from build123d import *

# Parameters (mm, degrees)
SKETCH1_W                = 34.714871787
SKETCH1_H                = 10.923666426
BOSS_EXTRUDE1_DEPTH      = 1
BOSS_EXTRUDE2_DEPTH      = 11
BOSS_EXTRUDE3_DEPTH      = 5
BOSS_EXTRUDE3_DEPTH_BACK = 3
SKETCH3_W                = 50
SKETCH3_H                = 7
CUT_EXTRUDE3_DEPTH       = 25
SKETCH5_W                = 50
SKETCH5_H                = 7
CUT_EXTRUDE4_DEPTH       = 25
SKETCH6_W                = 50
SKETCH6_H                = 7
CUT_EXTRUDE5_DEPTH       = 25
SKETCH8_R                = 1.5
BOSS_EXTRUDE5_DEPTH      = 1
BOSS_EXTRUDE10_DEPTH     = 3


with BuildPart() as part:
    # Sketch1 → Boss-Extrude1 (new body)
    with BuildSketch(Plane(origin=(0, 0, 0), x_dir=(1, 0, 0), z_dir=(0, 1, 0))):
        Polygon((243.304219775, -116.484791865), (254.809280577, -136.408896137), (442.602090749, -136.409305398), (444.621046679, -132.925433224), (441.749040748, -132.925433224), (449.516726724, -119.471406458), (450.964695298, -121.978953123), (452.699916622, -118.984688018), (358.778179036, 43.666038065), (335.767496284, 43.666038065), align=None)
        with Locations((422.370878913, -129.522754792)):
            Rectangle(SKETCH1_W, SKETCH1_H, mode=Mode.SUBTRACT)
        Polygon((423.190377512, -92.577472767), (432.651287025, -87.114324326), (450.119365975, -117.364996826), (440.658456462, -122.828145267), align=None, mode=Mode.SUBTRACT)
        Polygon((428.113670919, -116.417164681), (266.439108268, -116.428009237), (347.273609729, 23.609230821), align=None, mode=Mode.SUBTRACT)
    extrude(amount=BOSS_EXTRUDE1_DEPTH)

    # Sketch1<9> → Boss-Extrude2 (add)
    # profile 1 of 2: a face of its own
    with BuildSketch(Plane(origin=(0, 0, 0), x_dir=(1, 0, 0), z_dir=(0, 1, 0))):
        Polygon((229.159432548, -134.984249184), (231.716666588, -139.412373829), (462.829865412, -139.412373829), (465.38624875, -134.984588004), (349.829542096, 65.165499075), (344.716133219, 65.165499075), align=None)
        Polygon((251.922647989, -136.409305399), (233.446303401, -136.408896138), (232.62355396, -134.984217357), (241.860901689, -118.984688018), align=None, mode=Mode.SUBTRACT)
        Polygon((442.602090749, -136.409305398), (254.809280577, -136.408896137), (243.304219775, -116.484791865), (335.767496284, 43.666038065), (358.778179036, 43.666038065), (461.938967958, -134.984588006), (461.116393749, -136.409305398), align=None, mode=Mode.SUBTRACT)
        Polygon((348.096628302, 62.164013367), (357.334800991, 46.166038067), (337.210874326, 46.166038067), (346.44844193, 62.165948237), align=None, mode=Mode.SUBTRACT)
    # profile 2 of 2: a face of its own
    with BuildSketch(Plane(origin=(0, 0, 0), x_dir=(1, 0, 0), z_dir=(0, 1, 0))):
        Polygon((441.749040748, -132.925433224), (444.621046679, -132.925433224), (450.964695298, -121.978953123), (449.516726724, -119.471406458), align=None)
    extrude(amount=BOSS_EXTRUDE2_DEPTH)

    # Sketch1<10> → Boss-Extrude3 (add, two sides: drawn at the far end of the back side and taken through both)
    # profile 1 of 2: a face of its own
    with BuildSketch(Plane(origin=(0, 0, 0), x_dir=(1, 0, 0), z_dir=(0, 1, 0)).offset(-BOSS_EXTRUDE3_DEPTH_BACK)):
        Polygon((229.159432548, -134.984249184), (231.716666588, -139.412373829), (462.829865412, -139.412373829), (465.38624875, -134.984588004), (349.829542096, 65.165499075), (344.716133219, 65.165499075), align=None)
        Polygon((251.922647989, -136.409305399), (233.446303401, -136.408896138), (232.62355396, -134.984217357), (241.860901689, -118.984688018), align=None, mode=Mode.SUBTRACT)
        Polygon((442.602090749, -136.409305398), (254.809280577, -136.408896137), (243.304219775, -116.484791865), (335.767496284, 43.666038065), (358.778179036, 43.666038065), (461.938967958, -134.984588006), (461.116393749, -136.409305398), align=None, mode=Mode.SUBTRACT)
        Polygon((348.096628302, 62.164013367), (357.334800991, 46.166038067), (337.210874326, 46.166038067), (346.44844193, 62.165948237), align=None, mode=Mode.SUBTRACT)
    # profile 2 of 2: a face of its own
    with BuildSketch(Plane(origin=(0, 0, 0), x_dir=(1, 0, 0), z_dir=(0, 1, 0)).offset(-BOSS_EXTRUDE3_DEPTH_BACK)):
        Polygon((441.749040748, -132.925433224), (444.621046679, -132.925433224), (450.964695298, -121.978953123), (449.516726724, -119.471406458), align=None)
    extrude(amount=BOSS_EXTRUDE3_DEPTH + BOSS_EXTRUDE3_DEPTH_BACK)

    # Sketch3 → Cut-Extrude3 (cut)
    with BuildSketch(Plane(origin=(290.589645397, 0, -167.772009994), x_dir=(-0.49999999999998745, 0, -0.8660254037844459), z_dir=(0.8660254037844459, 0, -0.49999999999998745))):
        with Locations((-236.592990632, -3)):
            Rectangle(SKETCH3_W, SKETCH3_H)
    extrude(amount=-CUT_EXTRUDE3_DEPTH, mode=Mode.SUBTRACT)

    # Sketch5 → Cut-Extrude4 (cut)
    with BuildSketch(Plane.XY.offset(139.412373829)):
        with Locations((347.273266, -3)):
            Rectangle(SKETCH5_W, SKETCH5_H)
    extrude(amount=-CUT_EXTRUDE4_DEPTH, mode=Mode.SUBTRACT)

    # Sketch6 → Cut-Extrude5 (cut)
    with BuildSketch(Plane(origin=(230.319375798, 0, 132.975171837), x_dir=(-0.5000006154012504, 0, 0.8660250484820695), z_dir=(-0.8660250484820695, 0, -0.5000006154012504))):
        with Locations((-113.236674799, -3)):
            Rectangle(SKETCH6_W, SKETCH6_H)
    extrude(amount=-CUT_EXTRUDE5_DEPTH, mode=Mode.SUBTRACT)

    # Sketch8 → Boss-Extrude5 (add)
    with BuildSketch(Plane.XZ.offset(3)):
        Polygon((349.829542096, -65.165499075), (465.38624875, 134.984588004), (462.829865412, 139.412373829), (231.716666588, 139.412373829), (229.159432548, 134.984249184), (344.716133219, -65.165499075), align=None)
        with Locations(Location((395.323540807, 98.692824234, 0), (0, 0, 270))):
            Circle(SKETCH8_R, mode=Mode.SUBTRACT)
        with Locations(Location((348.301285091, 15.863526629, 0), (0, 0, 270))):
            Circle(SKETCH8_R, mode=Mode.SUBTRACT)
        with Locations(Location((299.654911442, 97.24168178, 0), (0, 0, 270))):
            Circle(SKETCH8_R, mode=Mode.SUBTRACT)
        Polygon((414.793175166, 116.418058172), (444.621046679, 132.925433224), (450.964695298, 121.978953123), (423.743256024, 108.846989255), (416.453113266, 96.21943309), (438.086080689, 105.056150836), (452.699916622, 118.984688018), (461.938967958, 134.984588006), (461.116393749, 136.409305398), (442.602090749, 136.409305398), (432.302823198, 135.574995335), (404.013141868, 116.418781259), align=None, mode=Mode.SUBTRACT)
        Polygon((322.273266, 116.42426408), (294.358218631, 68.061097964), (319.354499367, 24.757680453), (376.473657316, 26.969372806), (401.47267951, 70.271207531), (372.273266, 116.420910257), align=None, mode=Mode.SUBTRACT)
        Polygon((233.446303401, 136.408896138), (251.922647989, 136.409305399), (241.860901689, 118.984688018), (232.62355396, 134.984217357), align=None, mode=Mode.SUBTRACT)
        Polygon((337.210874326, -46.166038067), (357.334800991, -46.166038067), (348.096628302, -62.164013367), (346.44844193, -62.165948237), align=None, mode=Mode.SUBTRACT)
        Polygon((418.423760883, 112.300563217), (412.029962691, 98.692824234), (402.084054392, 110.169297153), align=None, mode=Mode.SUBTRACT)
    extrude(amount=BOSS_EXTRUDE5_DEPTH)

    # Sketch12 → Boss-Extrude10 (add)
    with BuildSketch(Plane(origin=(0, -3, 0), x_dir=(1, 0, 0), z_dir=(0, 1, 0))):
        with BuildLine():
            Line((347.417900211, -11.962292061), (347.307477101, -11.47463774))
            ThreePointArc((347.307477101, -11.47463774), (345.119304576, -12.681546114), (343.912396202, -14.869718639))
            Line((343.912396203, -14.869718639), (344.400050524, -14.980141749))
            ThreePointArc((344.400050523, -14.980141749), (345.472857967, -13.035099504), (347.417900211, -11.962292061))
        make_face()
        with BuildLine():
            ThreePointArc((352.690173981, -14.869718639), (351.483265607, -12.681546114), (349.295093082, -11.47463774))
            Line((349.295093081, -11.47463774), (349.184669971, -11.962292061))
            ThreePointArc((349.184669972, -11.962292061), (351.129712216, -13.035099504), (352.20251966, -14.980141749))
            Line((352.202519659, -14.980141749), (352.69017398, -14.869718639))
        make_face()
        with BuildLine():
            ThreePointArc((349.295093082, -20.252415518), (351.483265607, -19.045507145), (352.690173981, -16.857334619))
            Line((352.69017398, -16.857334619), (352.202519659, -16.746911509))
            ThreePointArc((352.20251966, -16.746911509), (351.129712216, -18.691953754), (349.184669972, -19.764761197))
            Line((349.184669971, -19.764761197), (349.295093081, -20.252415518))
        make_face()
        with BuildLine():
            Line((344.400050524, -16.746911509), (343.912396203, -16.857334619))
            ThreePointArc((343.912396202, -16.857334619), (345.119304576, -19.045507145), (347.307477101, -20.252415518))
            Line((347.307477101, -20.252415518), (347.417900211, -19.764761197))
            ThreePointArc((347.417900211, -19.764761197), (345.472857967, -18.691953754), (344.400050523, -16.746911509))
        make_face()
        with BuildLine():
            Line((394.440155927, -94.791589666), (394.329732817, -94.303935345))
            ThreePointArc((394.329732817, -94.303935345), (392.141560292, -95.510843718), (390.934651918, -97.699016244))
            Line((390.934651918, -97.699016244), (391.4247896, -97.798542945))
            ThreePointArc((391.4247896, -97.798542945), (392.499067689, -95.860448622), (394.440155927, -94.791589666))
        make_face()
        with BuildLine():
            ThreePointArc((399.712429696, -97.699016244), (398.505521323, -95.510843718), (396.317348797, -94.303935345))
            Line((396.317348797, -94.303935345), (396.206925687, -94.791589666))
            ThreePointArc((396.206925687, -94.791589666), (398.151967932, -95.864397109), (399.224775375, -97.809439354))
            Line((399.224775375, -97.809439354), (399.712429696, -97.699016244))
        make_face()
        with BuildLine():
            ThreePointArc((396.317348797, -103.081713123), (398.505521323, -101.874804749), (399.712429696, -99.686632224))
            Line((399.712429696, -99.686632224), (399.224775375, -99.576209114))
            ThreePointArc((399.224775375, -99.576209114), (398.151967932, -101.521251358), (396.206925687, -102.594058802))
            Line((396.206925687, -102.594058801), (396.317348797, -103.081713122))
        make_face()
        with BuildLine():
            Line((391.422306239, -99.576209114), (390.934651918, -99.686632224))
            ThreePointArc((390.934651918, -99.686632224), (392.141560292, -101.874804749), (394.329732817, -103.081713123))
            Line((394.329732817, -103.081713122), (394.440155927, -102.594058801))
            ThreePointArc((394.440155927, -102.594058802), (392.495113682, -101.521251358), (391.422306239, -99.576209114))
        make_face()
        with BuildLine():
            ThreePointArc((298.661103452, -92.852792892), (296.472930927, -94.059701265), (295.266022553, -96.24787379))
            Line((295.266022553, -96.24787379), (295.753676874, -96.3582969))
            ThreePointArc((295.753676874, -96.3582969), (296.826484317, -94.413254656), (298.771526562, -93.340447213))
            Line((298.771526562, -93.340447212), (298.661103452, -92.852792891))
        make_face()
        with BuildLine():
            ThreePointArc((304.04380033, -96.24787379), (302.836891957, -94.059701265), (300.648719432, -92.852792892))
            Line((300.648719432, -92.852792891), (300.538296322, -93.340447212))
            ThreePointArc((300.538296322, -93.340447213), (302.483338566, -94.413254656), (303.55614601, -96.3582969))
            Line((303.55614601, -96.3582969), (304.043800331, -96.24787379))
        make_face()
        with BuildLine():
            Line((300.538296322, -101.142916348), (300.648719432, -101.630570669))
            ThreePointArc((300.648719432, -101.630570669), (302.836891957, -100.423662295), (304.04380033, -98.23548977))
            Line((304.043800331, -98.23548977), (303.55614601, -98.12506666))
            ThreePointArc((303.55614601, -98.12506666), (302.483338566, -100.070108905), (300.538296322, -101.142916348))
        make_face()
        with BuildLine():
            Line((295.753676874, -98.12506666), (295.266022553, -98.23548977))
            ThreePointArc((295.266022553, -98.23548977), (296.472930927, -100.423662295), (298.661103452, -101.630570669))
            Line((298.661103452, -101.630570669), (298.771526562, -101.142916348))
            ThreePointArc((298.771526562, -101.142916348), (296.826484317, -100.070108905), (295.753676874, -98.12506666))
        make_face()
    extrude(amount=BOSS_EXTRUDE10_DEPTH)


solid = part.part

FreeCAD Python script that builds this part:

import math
import FreeCAD as App
import Part
import Sketcher
Q = App.Units.Quantity


def add_polygon(sketch, points):
    """Adds a closed chain of lines whose ends are joined by coincident constraints."""
    first, n = sketch.GeometryCount, len(points)
    for a, b in zip(points, points[1:] + points[:1]):
        sketch.addGeometry(Part.LineSegment(App.Vector(*a, 0), App.Vector(*b, 0)), False)
    for i in range(n):
        sketch.addConstraint(Sketcher.Constraint("Coincident", first + i, 2, first + (i + 1) % n, 1))

doc = App.newDocument("Part")
body = doc.addObject("PartDesign::Body", "Body")

# Sketch on XZ plane
sketch1 = body.newObject("Sketcher::SketchObject", "Sketch")
sketch1.AttachmentSupport = (doc.getObject("XZ_Plane"), [""])
sketch1.MapMode = "FlatFace"
add_polygon(sketch1, [(243.30422, 116.484792), (254.809281, 136.408896), (442.602091, 136.409305), (444.621047, 132.925433), (441.749041, 132.925433), (449.516727, 119.471406), (450.964695, 121.978953), (452.699917, 118.984688), (358.778179, -43.666038), (335.767496, -43.666038)])  # lines 0-9
add_polygon(sketch1, [(439.728315, 134.984588), (405.013443, 134.984588), (405.013443, 124.060922), (439.728315, 124.060922)])  # lines 10-13
add_polygon(sketch1, [(440.658456, 122.828145), (423.190378, 92.577473), (432.651287, 87.114324), (450.119366, 117.364997)])  # lines 14-17
add_polygon(sketch1, [(347.27361, -23.609231), (428.113671, 116.417165), (266.439108, 116.428009)])  # lines 18-20
sketch1.addConstraint([
    Sketcher.Constraint("Horizontal", 3),
    Sketcher.Constraint("Horizontal", 8),
    Sketcher.Constraint("Horizontal", 10),
    Sketcher.Constraint("Vertical", 11),
    Sketcher.Constraint("Horizontal", 12),
    Sketcher.Constraint("Vertical", 13),
    Sketcher.Constraint("Parallel", 0, 5),
    Sketcher.Constraint("Parallel", 2, 6),
    Sketcher.Constraint("Parallel", 5, 7),
    Sketcher.Constraint("Parallel", 4, 9),
    Sketcher.Constraint("Parallel", 7, 14),
    Sketcher.Constraint("Perpendicular", 14, 15),
    Sketcher.Constraint("Perpendicular", 15, 16),
    Sketcher.Constraint("Perpendicular", 16, 17),
    Sketcher.Constraint("Angle", 4, Q("-60 deg")),
    Sketcher.Constraint("DistanceX", 10, 2, 10, 1, 34.714872),
    Sketcher.Constraint("DistanceY", 4, 2, 1, 2, 16.937899),
    Sketcher.Constraint("DistanceX", 8, 2, 5, 2, 115.197199),
    Sketcher.Constraint("Distance", 0, 23.007311),
    Sketcher.Constraint("Distance", 1, 187.79281),
    Sketcher.Constraint("Distance", 4, 15.535372),
    Sketcher.Constraint("Distance", 7, 187.82053),
    Sketcher.Constraint("Distance", 14, 34.93189),
    Sketcher.Constraint("Distance", 20, 161.693059),
    Sketcher.Constraint("DistanceX", 3, 2, 3, 1, 2.872006),
    Sketcher.Constraint("DistanceX", 8, 2, 8, 1, 23.010683),
    Sketcher.Constraint("DistanceY", 11, 2, 11, 1, 10.923666),
    Sketcher.Constraint("DistanceX", -1, 1, 0, 2, 254.809281),
    Sketcher.Constraint("DistanceX", -1, 1, 3, 2, 441.749041),
    Sketcher.Constraint("DistanceY", -1, 1, 6, 2, 118.984688),
    Sketcher.Constraint("DistanceX", -1, 1, 7, 2, 358.778179),
    Sketcher.Constraint("DistanceY", 7, 2, -1, 1, 43.666038),
    Sketcher.Constraint("DistanceY", -1, 1, 10, 2, 134.984588),
    Sketcher.Constraint("DistanceX", -1, 1, 18, 2, 428.113671),
    Sketcher.Constraint("DistanceX", -1, 1, 19, 2, 266.439108),
    Sketcher.Constraint("DistanceY", -1, 1, 19, 2, 116.428009),
    Sketcher.Constraint("DistanceX", -1, 1, 20, 2, 347.27361),
    Sketcher.Constraint("DistanceX", 12, 2, 2, 2, 4.892732),
    Sketcher.Constraint("DistanceY", 14, 2, 12, 2, 31.483449),
    Sketcher.Constraint("DistanceX", 14, 2, 4, 2, 26.326349),
    Sketcher.Constraint("DistanceX", 14, 2, 15, 2, 9.46091),
    Sketcher.Constraint("DistanceY", 18, 2, 17, 2, 6.410981),
])
pad1 = body.newObject("PartDesign::Pad", "Pad")
pad1.Profile = sketch1
pad1.Length = 1
pad1.Reversed = True

# Sketch on XZ plane
sketch2 = body.newObject("Sketcher::SketchObject", "Sketch001")
sketch2.AttachmentSupport = (doc.getObject("XZ_Plane"), [""])
sketch2.MapMode = "FlatFace"
add_polygon(sketch2, [(229.159433, 134.984249), (231.716667, 139.412374), (462.829865, 139.412374), (465.386249, 134.984588), (349.829542, -65.165499), (344.716133, -65.165499)])  # lines 0-5
add_polygon(sketch2, [(241.860902, 118.984688), (251.922648, 136.409305), (233.446303, 136.408896), (232.623554, 134.984217)])  # lines 6-9
add_polygon(sketch2, [(461.116394, 136.409305), (442.602091, 136.409305), (254.809281, 136.408896), (243.30422, 116.484792), (335.767496, -43.666038), (358.778179, -43.666038), (461.938968, 134.984588)])  # lines 10-16
add_polygon(sketch2, [(346.448442, -62.165948), (348.096628, -62.164013), (357.334801, -46.166038), (337.210874, -46.166038)])  # lines 17-20
add_polygon(sketch2, [(441.749041, 132.925433), (444.621047, 132.925433), (450.964695, 121.978953), (449.516727, 119.471406)])  # lines 21-24
sketch2.addConstraint([
    Sketcher.Constraint("Horizontal", 1),
    Sketcher.Constraint("Horizontal", 4),
    Sketcher.Constraint("Horizontal", 10),
    Sketcher.Constraint("Horizontal", 14),
    Sketcher.Constraint("Horizontal", 19),
    Sketcher.Constraint("Horizontal", 21),
    Sketcher.Constraint("DistanceY", 18, 2, 14, 2, 2.5),
    Sketcher.Constraint("DistanceX", 1, 1, 1, 2, 231.113199),
    Sketcher.Constraint("DistanceX", 4, 2, 4, 1, 5.113409),
    Sketcher.Constraint("DistanceY", 3, 2, -1, 1, 65.165499),
    Sketcher.Constraint("DistanceX", -1, 1, 9, 2, 241.860902),
    Sketcher.Constraint("DistanceX", -1, 1, 18, 2, 357.334801),
    Sketcher.Constraint("DistanceX", 5, 2, 4, 2, 115.556701),
    Sketcher.Constraint("DistanceX", 6, 2, 2, 2, 213.463601),
    Sketcher.Constraint("DistanceX", 7, 2, 9, 2, 8.414598),
    Sketcher.Constraint("DistanceX", 20, 2, 3, 2, 3.3811),
    Sketcher.Constraint("DistanceX", 22, 2, 16, 2, 10.151698),
    Sketcher.Constraint("DistanceY", 23, 2, 10, 2, 16.937899),
    Sketcher.Constraint("Distance", 11, 187.79281),
    Sketcher.Constraint("Distance", 12, 23.007311),
    Sketcher.Constraint("Distance", 16, 1.645129),
    Sketcher.Constraint("Distance", 18, 18.473739),
    Sketcher.Constraint("Distance", 22, 12.651771),
    Sketcher.Constraint("Distance", 24, 15.535372),
    Sketcher.Constraint("DistanceX", 10, 2, 10, 1, 18.514303),
    Sketcher.Constraint("DistanceX", 14, 1, 14, 2, 23.010683),
    Sketcher.Constraint("DistanceX", 19, 2, 19, 1, 20.123927),
    Sketcher.Constraint("DistanceX", 21, 1, 21, 2, 2.872006),
    Sketcher.Constraint("DistanceX", -1, 1, 2, 2, 465.386249),
    Sketcher.Constraint("DistanceY", -1, 1, 2, 2, 134.984588),
    Sketcher.Constraint("DistanceY", -1, 1, 5, 2, 134.984249),
    Sketcher.Constraint("DistanceY", -1, 1, 9, 2, 118.984688),
    Sketcher.Constraint("DistanceX", -1, 1, 10, 2, 442.602091),
    Sketcher.Constraint("DistanceX", -1, 1, 12, 2, 243.30422),
    Sketcher.Constraint("DistanceY", -1, 1, 12, 2, 116.484792),
    Sketcher.Constraint("DistanceY", 13, 2, -1, 1, 43.666038),
    Sketcher.Constraint("DistanceX", -1, 1, 14, 2, 358.778179),
    Sketcher.Constraint("DistanceY", -1, 1, 15, 2, 134.984588),
    Sketcher.Constraint("DistanceX", -1, 1, 17, 2, 348.096628),
    Sketcher.Constraint("DistanceX", -1, 1, 20, 2, 346.448442),
    Sketcher.Constraint("DistanceY", 20, 2, -1, 1, 62.165948),
    Sketcher.Constraint("DistanceX", -1, 1, 24, 2, 441.749041),
    Sketcher.Constraint("DistanceX", 0, 2, 6, 2, 20.205981),
    Sketcher.Constraint("DistanceY", 6, 2, 0, 2, 3.003068),
    Sketcher.Constraint("DistanceY", 7, 2, 6, 2, 0.000409),
    Sketcher.Constraint("DistanceX", 8, 2, 7, 2, 0.822749),
    Sketcher.Constraint("DistanceY", 8, 2, 7, 2, 1.424679),
    Sketcher.Constraint("DistanceY", 9, 2, 8, 2, 15.999529),
    Sketcher.Constraint("DistanceY", 10, 2, 1, 2, 3.003068),
    Sketcher.Constraint("DistanceY", 21, 2, 1, 2, 6.486941),
])
pad2 = body.newObject("PartDesign::Pad", "Pad001")
pad2.Profile = sketch2
pad2.Length = 11
pad2.Reversed = True

# Sketch on XZ plane
sketch3 = body.newObject("Sketcher::SketchObject", "Sketch002")
sketch3.AttachmentSupport = (doc.getObject("XZ_Plane"), [""])
sketch3.MapMode = "FlatFace"
add_polygon(sketch3, [(229.159433, 134.984249), (231.716667, 139.412374), (462.829865, 139.412374), (465.386249, 134.984588), (349.829542, -65.165499), (344.716133, -65.165499)])  # lines 0-5
add_polygon(sketch3, [(241.860902, 118.984688), (251.922648, 136.409305), (233.446303, 136.408896), (232.623554, 134.984217)])  # lines 6-9
add_polygon(sketch3, [(461.116394, 136.409305), (442.602091, 136.409305), (254.809281, 136.408896), (243.30422, 116.484792), (335.767496, -43.666038), (358.778179, -43.666038), (461.938968, 134.984588)])  # lines 10-16
add_polygon(sketch3, [(346.448442, -62.165948), (348.096628, -62.164013), (357.334801, -46.166038), (337.210874, -46.166038)])  # lines 17-20
add_polygon(sketch3, [(441.749041, 132.925433), (444.621047, 132.925433), (450.964695, 121.978953), (449.516727, 119.471406)])  # lines 21-24
sketch3.addConstraint([
    Sketcher.Constraint("Horizontal", 1),
    Sketcher.Constraint("Horizontal", 4),
    Sketcher.Constraint("Horizontal", 10),
    Sketcher.Constraint("Horizontal", 14),
    Sketcher.Constraint("Horizontal", 19),
    Sketcher.Constraint("Horizontal", 21),
    Sketcher.Constraint("DistanceY", 18, 2, 14, 2, 2.5),
    Sketcher.Constraint("DistanceX", 1, 1, 1, 2, 231.113199),
    Sketcher.Constraint("DistanceX", 4, 2, 4, 1, 5.113409),
    Sketcher.Constraint("DistanceY", 3, 2, -1, 1, 65.165499),
    Sketcher.Constraint("DistanceX", -1, 1, 9, 2, 241.860902),
    Sketcher.Constraint("DistanceX", -1, 1, 18, 2, 357.334801),
    Sketcher.Constraint("DistanceX", 5, 2, 4, 2, 115.556701),
    Sketcher.Constraint("DistanceX", 6, 2, 2, 2, 213.463601),
    Sketcher.Constraint("DistanceX", 7, 2, 9, 2, 8.414598),
    Sketcher.Constraint("DistanceX", 20, 2, 3, 2, 3.3811),
    Sketcher.Constraint("DistanceX", 22, 2, 16, 2, 10.151698),
    Sketcher.Constraint("DistanceY", 23, 2, 10, 2, 16.937899),
    Sketcher.Constraint("Distance", 11, 187.79281),
    Sketcher.Constraint("Distance", 12, 23.007311),
    Sketcher.Constraint("Distance", 16, 1.645129),
    Sketcher.Constraint("Distance", 18, 18.473739),
    Sketcher.Constraint("Distance", 22, 12.651771),
    Sketcher.Constraint("Distance", 24, 15.535372),
    Sketcher.Constraint("DistanceX", 10, 2, 10, 1, 18.514303),
    Sketcher.Constraint("DistanceX", 14, 1, 14, 2, 23.010683),
    Sketcher.Constraint("DistanceX", 19, 2, 19, 1, 20.123927),
    Sketcher.Constraint("DistanceX", 21, 1, 21, 2, 2.872006),
    Sketcher.Constraint("DistanceX", -1, 1, 2, 2, 465.386249),
    Sketcher.Constraint("DistanceY", -1, 1, 2, 2, 134.984588),
    Sketcher.Constraint("DistanceY", -1, 1, 5, 2, 134.984249),
    Sketcher.Constraint("DistanceY", -1, 1, 9, 2, 118.984688),
    Sketcher.Constraint("DistanceX", -1, 1, 10, 2, 442.602091),
    Sketcher.Constraint("DistanceX", -1, 1, 12, 2, 243.30422),
    Sketcher.Constraint("DistanceY", -1, 1, 12, 2, 116.484792),
    Sketcher.Constraint("DistanceY", 13, 2, -1, 1, 43.666038),
    Sketcher.Constraint("DistanceX", -1, 1, 14, 2, 358.778179),
    Sketcher.Constraint("DistanceY", -1, 1, 15, 2, 134.984588),
    Sketcher.Constraint("DistanceX", -1, 1, 17, 2, 348.096628),
    Sketcher.Constraint("DistanceX", -1, 1, 20, 2, 346.448442),
    Sketcher.Constraint("DistanceY", 20, 2, -1, 1, 62.165948),
    Sketcher.Constraint("DistanceX", -1, 1, 24, 2, 441.749041),
    Sketcher.Constraint("DistanceX", 0, 2, 6, 2, 20.205981),
    Sketcher.Constraint("DistanceY", 6, 2, 0, 2, 3.003068),
    Sketcher.Constraint("DistanceY", 7, 2, 6, 2, 0.000409),
    Sketcher.Constraint("DistanceX", 8, 2, 7, 2, 0.822749),
    Sketcher.Constraint("DistanceY", 8, 2, 7, 2, 1.424679),
    Sketcher.Constraint("DistanceY", 9, 2, 8, 2, 15.999529),
    Sketcher.Constraint("DistanceY", 10, 2, 1, 2, 3.003068),
    Sketcher.Constraint("DistanceY", 21, 2, 1, 2, 6.486941),
])
pad3 = body.newObject("PartDesign::Pad", "Pad002")
pad3.Profile = sketch3
pad3.Type = "TwoLengths"
pad3.Length = 5
pad3.Length2 = 3
pad3.Reversed = True

# Sketch on an angled plane
sketch4 = body.newObject("Sketcher::SketchObject", "Sketch003")
sketch4.Placement = App.Placement(App.Vector(290.589645, 0, -167.77201), App.Rotation(App.Vector(-0.5, 0, -0.866025404), App.Vector(0, 1, 0), App.Vector(0.866025404, 0, -0.5), "ZXY"))
add_polygon(sketch4, [(-261.592991, 0.5), (-261.592991, -6.5), (-211.592991, -6.5), (-211.592991, 0.5)])  # lines 0-3
sketch4.addConstraint([
    Sketcher.Constraint("Vertical", 0),
    Sketcher.Constraint("Horizontal", 1),
    Sketcher.Constraint("Vertical", 2),
    Sketcher.Constraint("Horizontal", 3),
    Sketcher.Constraint("DistanceX", 1, 1, 1, 2, 50.0),
    Sketcher.Constraint("DistanceY", 0, 2, 0, 1, 7.0),
    Sketcher.Constraint("DistanceY", 0, 2, -1, 1, 6.5),
    Sketcher.Constraint("DistanceX", 0, 2, -1, 1, 261.592991),
])
pocket1 = body.newObject("PartDesign::Pocket", "Pocket")
pocket1.Profile = sketch4
pocket1.Length = 25

# Sketch on XY plane
sketch5 = body.newObject("Sketcher::SketchObject", "Sketch004")
sketch5.AttachmentSupport = (doc.getObject("XY_Plane"), [""])
sketch5.MapMode = "FlatFace"
sketch5.AttachmentOffset = App.Placement(App.Vector(0, 0, 139.412374), App.Rotation())
add_polygon(sketch5, [(322.273266, 0.5), (322.273266, -6.5), (372.273266, -6.5), (372.273266, 0.5)])  # lines 0-3
sketch5.addConstraint([
    Sketcher.Constraint("Vertical", 0),
    Sketcher.Constraint("Horizontal", 1),
    Sketcher.Constraint("Vertical", 2),
    Sketcher.Constraint("Horizontal", 3),
    Sketcher.Constraint("DistanceX", 1, 1, 1, 2, 50.0),
    Sketcher.Constraint("DistanceY", 0, 2, 0, 1, 7.0),
    Sketcher.Constraint("DistanceY", 0, 2, -1, 1, 6.5),
    Sketcher.Constraint("DistanceX", -1, 1, 0, 2, 322.273266),
])
pocket2 = body.newObject("PartDesign::Pocket", "Pocket001")
pocket2.Profile = sketch5
pocket2.Length = 25

# Sketch on an angled plane
sketch6 = body.newObject("Sketcher::SketchObject", "Sketch005")
sketch6.Placement = App.Placement(App.Vector(230.319376, 0, 132.975172), App.Rotation(App.Vector(-0.500000615, 0, 0.866025048), App.Vector(0, 0.999999999, 0), App.Vector(-0.866025048, 0, -0.500000615), "ZXY"))
add_polygon(sketch6, [(-138.236675, 0.5), (-138.236675, -6.5), (-88.236675, -6.5), (-88.236675, 0.5)])  # lines 0-3
sketch6.addConstraint([
    Sketcher.Constraint("Vertical", 0),
    Sketcher.Constraint("Horizontal", 1),
    Sketcher.Constraint("Vertical", 2),
    Sketcher.Constraint("Horizontal", 3),
    Sketcher.Constraint("DistanceX", 1, 1, 1, 2, 50.0),
    Sketcher.Constraint("DistanceY", 0, 2, 0, 1, 7.0),
    Sketcher.Constraint("DistanceY", 0, 2, -1, 1, 6.5),
    Sketcher.Constraint("DistanceX", 0, 2, -1, 1, 138.236675),
])
pocket3 = body.newObject("PartDesign::Pocket", "Pocket002")
pocket3.Profile = sketch6
pocket3.Length = 25

# Sketch on XZ plane
sketch7 = body.newObject("Sketcher::SketchObject", "Sketch006")
sketch7.AttachmentSupport = (doc.getObject("XZ_Plane"), [""])
sketch7.MapMode = "FlatFace"
sketch7.AttachmentOffset = App.Placement(App.Vector(0, 0, 3), App.Rotation())
add_polygon(sketch7, [(349.829542, -65.165499), (465.386249, 134.984588), (462.829865, 139.412374), (231.716667, 139.412374), (229.159433, 134.984249), (344.716133, -65.165499)])  # lines 0-5
add_polygon(sketch7, [(346.448442, -62.165948), (337.210874, -46.166038), (357.334801, -46.166038), (348.096628, -62.164013)])  # lines 6-9
sketch7.addGeometry(Part.Circle(App.Vector(348.301285, 15.863527, 0), App.Vector(0, 0, 1), 1.5), False)  # 10
add_polygon(sketch7, [(232.623554, 134.984217), (233.446303, 136.408896), (251.922648, 136.409305), (241.860902, 118.984688)])  # lines 11-14
sketch7.addGeometry(Part.Circle(App.Vector(299.654911, 97.241682, 0), App.Vector(0, 0, 1), 1.5), False)  # 15
add_polygon(sketch7, [(294.358219, 68.061098), (322.273266, 116.424264), (372.273266, 116.42091), (401.47268, 70.271208), (376.473657, 26.969373), (319.354499, 24.75768)])  # lines 16-21
sketch7.addGeometry(Part.Circle(App.Vector(395.323541, 98.692824, 0), App.Vector(0, 0, 1), 1.5), False)  # 22
add_polygon(sketch7, [(402.084054, 110.169297), (418.423761, 112.300563), (412.029963, 98.692824)])  # lines 23-25
add_polygon(sketch7, [(444.621047, 132.925433), (414.793175, 116.418058), (404.013142, 116.418781), (432.302823, 135.574995), (442.602091, 136.409305), (461.116394, 136.409305), (461.938968, 134.984588), (452.699917, 118.984688), (438.086081, 105.056151), (416.453113, 96.219433), (423.743256, 108.846989), (450.964695, 121.978953)])  # lines 26-37
sketch7.addConstraint([
    Sketcher.Constraint("Horizontal", 2),
    Sketcher.Constraint("Horizontal", 5),
    Sketcher.Constraint("Horizontal", 7),
    Sketcher.Constraint("Horizontal", 30),
    Sketcher.Constraint("Diameter", 10, 3.0),
    Sketcher.Constraint("Diameter", 15, 3.0),
    Sketcher.Constraint("Diameter", 22, 3.0),
    Sketcher.Constraint("Distance", 17, 50.0),
    Sketcher.Constraint("Distance", 19, 50.0),
    Sketcher.Constraint("Distance", 21, 50.0),
    Sketcher.Constraint("Distance", 24, 15.035),
    Sketcher.Constraint("DistanceX", 2, 2, 2, 1, 231.113199),
    Sketcher.Constraint("DistanceX", 5, 2, 22, 3, 45.493999),
    Sketcher.Constraint("DistanceY", 20, 2, 15, 3, 72.484001),
    Sketcher.Constraint("Distance", 34, 23.368202),
    Sketcher.Constraint("DistanceX", 5, 1, 5, 2, 5.113409),
    Sketcher.Constraint("DistanceY", 4, 2, -1, 1, 65.165499),
    Sketcher.Constraint("DistanceX", -1, 1, 7, 2, 357.334801),
    Sketcher.Constraint("DistanceX", -1, 1, 13, 2, 241.860902),
    Sketcher.Constraint("DistanceX", -1, 1, 20, 2, 319.354499),
    Sketcher.Constraint("DistanceX", 3, 2, 4, 2, 115.556701),
    Sketcher.Constraint("DistanceX", 9, 2, 5, 2, 3.3811),
    Sketcher.Constraint("DistanceX", 11, 2, 13, 2, 8.414598),
    Sketcher.Constraint("DistanceX", 17, 2, 1, 2, 90.556599),
    Sketcher.Constraint("DistanceX", 24, 2, 23, 2, 6.393798),
    Sketcher.Constraint("DistanceX", 22, 3, 27, 2, 8.689601),
    Sketcher.Constraint("DistanceY", 32, 2, 31, 2, 15.9999),
    Sketcher.Constraint("DistanceY", 32, 2, 0, 2, 15.9999),
    Sketcher.Constraint("DistanceX", 36, 2, 30, 2, 10.151698),
    Sketcher.Constraint("Distance", 8, 18.473739),
    Sketcher.Constraint("Distance", 18, 54.611362),
    Sketcher.Constraint("Distance", 20, 57.161961),
    Sketcher.Constraint("Distance", 31, 1.645129),
    Sketcher.Constraint("Distance", 36, 30.223422),
    Sketcher.Constraint("Distance", 37, 12.651771),
    Sketcher.Constraint("DistanceX", 7, 1, 7, 2, 20.123927),
    Sketcher.Constraint("DistanceX", 30, 1, 30, 2, 18.514303),
    Sketcher.Constraint("DistanceX", -1, 1, 15, 3, 299.654911),
    Sketcher.Constraint("DistanceY", -1, 1, 15, 3, 97.241682),
    Sketcher.Constraint("DistanceX", -1, 1, 22, 3, 395.323541),
    Sketcher.Constraint("DistanceX", -1, 1, 0, 2, 465.386249),
    Sketcher.Constraint("DistanceY", -1, 1, 0, 2, 134.984588),
    Sketcher.Constraint("DistanceY", -1, 1, 3, 2, 134.984249),
    Sketcher.Constraint("DistanceY", 6, 2, -1, 1, 46.166038),
    Sketcher.Constraint("DistanceX", -1, 1, 8, 2, 348.096628),
    Sketcher.Constraint("DistanceY", 9, 2, -1, 1, 62.165948),
    Sketcher.Constraint("DistanceY", -1, 1, 13, 2, 118.984688),
    Sketcher.Constraint("DistanceY", -1, 1, 17, 2, 116.42091),
    Sketcher.Constraint("DistanceX", -1, 1, 18, 2, 401.47268),
    Sketcher.Constraint("DistanceX", -1, 1, 21, 2, 294.358219),
    Sketcher.Constraint("DistanceX", -1, 1, 23, 2, 418.423761),
    Sketcher.Constraint("DistanceY", -1, 1, 26, 2, 116.418058),
    Sketcher.Constraint("DistanceY", -1, 1, 27, 2, 116.418781),
    Sketcher.Constraint("DistanceX", -1, 1, 29, 2, 442.602091),
    Sketcher.Constraint("DistanceX", -1, 1, 33, 2, 438.086081),
    Sketcher.Constraint("DistanceY", -1, 1, 33, 2, 105.056151),
    Sketcher.Constraint("DistanceY", -1, 1, 35, 2, 108.846989),
    Sketcher.Constraint("DistanceY", 10, 3, 0, 2, 119.121061),
    Sketcher.Constraint("DistanceY", 22, 3, 1, 2, 40.71955),
    Sketcher.Constraint("DistanceX", 10, 3, 1, 2, 114.52858),
    Sketcher.Constraint("DistanceX", 4, 2, 10, 3, 3.585152),
    Sketcher.Constraint("DistanceY", 22, 3, 11, 2, 37.716072),
    Sketcher.Constraint("DistanceY", 10, 3, 11, 2, 120.54537),
    Sketcher.Constraint("DistanceY", 11, 2, 12, 2, 0.000409),
    Sketcher.Constraint("DistanceX", 2, 2, 12, 2, 20.205981),
    Sketcher.Constraint("DistanceX", 14, 2, 11, 2, 0.822749),
    Sketcher.Constraint("DistanceY", 14, 2, 11, 2, 1.424679),
    Sketcher.Constraint("DistanceY", 16, 2, 12, 2, 19.985041),
    Sketcher.Constraint("DistanceY", 22, 3, 23, 2, 13.607739),
    Sketcher.Constraint("DistanceX", 25, 2, 24, 2, 9.945908),
    Sketcher.Constraint("DistanceY", 18, 2, 25, 2, 39.89809),
    Sketcher.Constraint("DistanceX", 25, 2, 26, 2, 12.709121),
    Sketcher.Constraint("DistanceX", 26, 2, 28, 2, 17.509648),
    Sketcher.Constraint("DistanceY", 28, 2, 1, 2, 3.837378),
    Sketcher.Constraint("DistanceY", 28, 2, 29, 2, 0.83431),
    Sketcher.Constraint("DistanceX", 32, 2, 31, 2, 9.239051),
    Sketcher.Constraint("DistanceX", 24, 2, 34, 2, 4.423151),
    Sketcher.Constraint("DistanceX", 26, 2, 35, 2, 8.950081),
    Sketcher.Constraint("DistanceX", 37, 2, 36, 2, 6.343649),
])
pad4 = body.newObject("PartDesign::Pad", "Pad003")
pad4.Profile = sketch7
pad4.Length = 1

# Sketch on XZ plane
sketch8 = body.newObject("Sketcher::SketchObject", "Sketch007")
sketch8.AttachmentSupport = (doc.getObject("XZ_Plane"), [""])
sketch8.MapMode = "FlatFace"
sketch8.AttachmentOffset = App.Placement(App.Vector(0, 0, 3), App.Rotation())
sketch8.addGeometry([
    Part.LineSegment(App.Vector(347.4179, 11.962292, 0), App.Vector(347.307477, 11.474638, 0)),  # 0
    Part.ArcOfCircle(Part.Circle(App.Vector(348.301285, 15.863527, 0), App.Vector(0, 0, 1), 4.5), math.radians(-167.24126), math.radians(-102.75874)),  # 1
    Part.LineSegment(App.Vector(343.912396, 14.869719, 0), App.Vector(344.400051, 14.980142, 0)),  # 2
    Part.ArcOfCircle(Part.Circle(App.Vector(348.301285, 15.863527, 0), App.Vector(0, 0, 1), 4), math.radians(-167.24126), math.radians(-102.75874)),  # 3
    Part.ArcOfCircle(Part.Circle(App.Vector(348.301285, 15.863527, 0), App.Vector(0, 0, 1), 4.5), math.radians(-77.24126), math.radians(-12.75874)),  # 4
    Part.LineSegment(App.Vector(349.295093, 11.474638, 0), App.Vector(349.18467, 11.962292, 0)),  # 5
    Part.ArcOfCircle(Part.Circle(App.Vector(348.301285, 15.863527, 0), App.Vector(0, 0, 1), 4), math.radians(-77.24126), math.radians(-12.75874)),  # 6
    Part.LineSegment(App.Vector(352.20252, 14.980142, 0), App.Vector(352.690174, 14.869719, 0)),  # 7
    Part.ArcOfCircle(Part.Circle(App.Vector(348.301285, 15.863527, 0), App.Vector(0, 0, 1), 4.5), math.radians(12.75874), math.radians(77.24126)),  # 8
    Part.LineSegment(App.Vector(352.690174, 16.857335, 0), App.Vector(352.20252, 16.746912, 0)),  # 9
    Part.ArcOfCircle(Part.Circle(App.Vector(348.301285, 15.863527, 0), App.Vector(0, 0, 1), 4), math.radians(12.75874), math.radians(77.24126)),  # 10
    Part.LineSegment(App.Vector(349.18467, 19.764761, 0), App.Vector(349.295093, 20.252416, 0)),  # 11
    Part.LineSegment(App.Vector(344.400051, 16.746912, 0), App.Vector(343.912396, 16.857335, 0)),  # 12
    Part.ArcOfCircle(Part.Circle(App.Vector(348.301285, 15.863527, 0), App.Vector(0, 0, 1), 4.5), math.radians(102.75874), math.radians(167.24126)),  # 13
    Part.LineSegment(App.Vector(347.307477, 20.252416, 0), App.Vector(347.4179, 19.764761, 0)),  # 14
    Part.ArcOfCircle(Part.Circle(App.Vector(348.301285, 15.863527, 0), App.Vector(0, 0, 1), 4), math.radians(102.75874), math.radians(167.24126)),  # 15
    Part.LineSegment(App.Vector(394.440156, 94.79159, 0), App.Vector(394.329733, 94.303935, 0)),  # 16
    Part.ArcOfCircle(Part.Circle(App.Vector(395.323541, 98.692824, 0), App.Vector(0, 0, 1), 4.5), math.radians(-167.24126), math.radians(-102.75874)),  # 17
    Part.LineSegment(App.Vector(390.934652, 97.699016, 0), App.Vector(391.42479, 97.798543, 0)),  # 18
    Part.ArcOfCircle(Part.Circle(App.Vector(395.323541, 98.692824, 0), App.Vector(0, 0, 1), 4), math.radians(-167.081178), math.radians(-102.75874)),  # 19
    Part.ArcOfCircle(Part.Circle(App.Vector(395.323541, 98.692824, 0), App.Vector(0, 0, 1), 4.5), math.radians(-77.24126), math.radians(-12.75874)),  # 20
    Part.LineSegment(App.Vector(396.317349, 94.303935, 0), App.Vector(396.206926, 94.79159, 0)),  # 21
    Part.ArcOfCircle(Part.Circle(App.Vector(395.323541, 98.692824, 0), App.Vector(0, 0, 1), 4), math.radians(-77.24126), math.radians(-12.75874)),  # 22
    Part.LineSegment(App.Vector(399.224775, 97.809439, 0), App.Vector(399.71243, 97.699016, 0)),  # 23
    Part.ArcOfCircle(Part.Circle(App.Vector(395.323541, 98.692824, 0), App.Vector(0, 0, 1), 4.5), math.radians(12.75874), math.radians(77.24126)),  # 24
    Part.LineSegment(App.Vector(399.71243, 99.686632, 0), App.Vector(399.224775, 99.576209, 0)),  # 25
    Part.ArcOfCircle(Part.Circle(App.Vector(395.323541, 98.692824, 0), App.Vector(0, 0, 1), 4), math.radians(12.75874), math.radians(77.24126)),  # 26
    Part.LineSegment(App.Vector(396.206926, 102.594059, 0), App.Vector(396.317349, 103.081713, 0)),  # 27
    Part.LineSegment(App.Vector(391.422306, 99.576209, 0), App.Vector(390.934652, 99.686632, 0)),  # 28
    Part.ArcOfCircle(Part.Circle(App.Vector(395.323541, 98.692824, 0), App.Vector(0, 0, 1), 4.5), math.radians(102.75874), math.radians(167.24126)),  # 29
    Part.LineSegment(App.Vector(394.329733, 103.081713, 0), App.Vector(394.440156, 102.594059, 0)),  # 30
    Part.ArcOfCircle(Part.Circle(App.Vector(395.323541, 98.692824, 0), App.Vector(0, 0, 1), 4), math.radians(102.75874), math.radians(167.24126)),  # 31
    Part.ArcOfCircle(Part.Circle(App.Vector(299.654911, 97.241682, 0), App.Vector(0, 0, 1), 4.5), math.radians(-167.24126), math.radians(-102.75874)),  # 32
    Part.LineSegment(App.Vector(295.266023, 96.247874, 0), App.Vector(295.753677, 96.358297, 0)),  # 33
    Part.ArcOfCircle(Part.Circle(App.Vector(299.654911, 97.241682, 0), App.Vector(0, 0, 1), 4), math.radians(-167.24126), math.radians(-102.75874)),  # 34
    Part.LineSegment(App.Vector(298.771527, 93.340447, 0), App.Vector(298.661103, 92.852793, 0)),  # 35
    Part.ArcOfCircle(Part.Circle(App.Vector(299.654911, 97.241682, 0), App.Vector(0, 0, 1), 4.5), math.radians(-77.24126), math.radians(-12.75874)),  # 36
    Part.LineSegment(App.Vector(300.648719, 92.852793, 0), App.Vector(300.538296, 93.340447, 0)),  # 37
    Part.ArcOfCircle(Part.Circle(App.Vector(299.654911, 97.241682, 0), App.Vector(0, 0, 1), 4), math.radians(-77.24126), math.radians(-12.75874)),  # 38
    Part.LineSegment(App.Vector(303.556146, 96.358297, 0), App.Vector(304.0438, 96.247874, 0)),  # 39
    Part.LineSegment(App.Vector(300.538296, 101.142916, 0), App.Vector(300.648719, 101.630571, 0)),  # 40
    Part.ArcOfCircle(Part.Circle(App.Vector(299.654911, 97.241682, 0), App.Vector(0, 0, 1), 4.5), math.radians(12.75874), math.radians(77.24126)),  # 41
    Part.LineSegment(App.Vector(304.0438, 98.23549, 0), App.Vector(303.556146, 98.125067, 0)),  # 42
    Part.ArcOfCircle(Part.Circle(App.Vector(299.654911, 97.241682, 0), App.Vector(0, 0, 1), 4), math.radians(12.75874), math.radians(77.24126)),  # 43
    Part.LineSegment(App.Vector(295.753677, 98.125067, 0), App.Vector(295.266023, 98.23549, 0)),  # 44
    Part.ArcOfCircle(Part.Circle(App.Vector(299.654911, 97.241682, 0), App.Vector(0, 0, 1), 4.5), math.radians(102.75874), math.radians(167.24126)),  # 45
    Part.LineSegment(App.Vector(298.661103, 101.630571, 0), App.Vector(298.771527, 101.142916, 0)),  # 46
    Part.ArcOfCircle(Part.Circle(App.Vector(299.654911, 97.241682, 0), App.Vector(0, 0, 1), 4), math.radians(102.75874), math.radians(167.24126)),  # 47
], False)
sketch8.addConstraint([
    Sketcher.Constraint("Coincident", 0, 2, 1, 2),
    Sketcher.Constraint("Coincident", 1, 1, 2, 1),
    Sketcher.Constraint("Coincident", 2, 2, 3, 1),
    Sketcher.Constraint("Coincident", 3, 2, 0, 1),
    Sketcher.Constraint("Coincident", 4, 1, 5, 1),
    Sketcher.Constraint("Coincident", 5, 2, 6, 1),
    Sketcher.Constraint("Coincident", 6, 2, 7, 1),
    Sketcher.Constraint("Coincident", 7, 2, 4, 2),
    Sketcher.Constraint("Coincident", 8, 1, 9, 1),
    Sketcher.Constraint("Coincident", 9, 2, 10, 1),
    Sketcher.Constraint("Coincident", 10, 2, 11, 1),
    Sketcher.Constraint("Coincident", 11, 2, 8, 2),
    Sketcher.Constraint("Coincident", 12, 2, 13, 2),
    Sketcher.Constraint("Coincident", 13, 1, 14, 1),
    Sketcher.Constraint("Coincident", 14, 2, 15, 1),
    Sketcher.Constraint("Coincident", 15, 2, 12, 1),
    Sketcher.Constraint("Coincident", 16, 2, 17, 2),
    Sketcher.Constraint("Coincident", 17, 1, 18, 1),
    Sketcher.Constraint("Coincident", 18, 2, 19, 1),
    Sketcher.Constraint("Coincident", 19, 2, 16, 1),
    Sketcher.Constraint("Coincident", 20, 1, 21, 1),
    Sketcher.Constraint("Coincident", 21, 2, 22, 1),
    Sketcher.Constraint("Coincident", 22, 2, 23, 1),
    Sketcher.Constraint("Coincident", 23, 2, 20, 2),
    Sketcher.Constraint("Coincident", 24, 1, 25, 1),
    Sketcher.Constraint("Coincident", 25, 2, 26, 1),
    Sketcher.Constraint("Coincident", 26, 2, 27, 1),
    Sketcher.Constraint("Coincident", 27, 2, 24, 2),
    Sketcher.Constraint("Coincident", 28, 2, 29, 2),
    Sketcher.Constraint("Coincident", 29, 1, 30, 1),
    Sketcher.Constraint("Coincident", 30, 2, 31, 1),
    Sketcher.Constraint("Coincident", 31, 2, 28, 1),
    Sketcher.Constraint("Coincident", 32, 1, 33, 1),
    Sketcher.Constraint("Coincident", 33, 2, 34, 1),
    Sketcher.Constraint("Coincident", 34, 2, 35, 1),
    Sketcher.Constraint("Coincident", 35, 2, 32, 2),
    Sketcher.Constraint("Coincident", 36, 1, 37, 1),
    Sketcher.Constraint("Coincident", 37, 2, 38, 1),
    Sketcher.Constraint("Coincident", 38, 2, 39, 1),
    Sketcher.Constraint("Coincident", 39, 2, 36, 2),
    Sketcher.Constraint("Coincident", 40, 2, 41, 2),
    Sketcher.Constraint("Coincident", 41, 1, 42, 1),
    Sketcher.Constraint("Coincident", 42, 2, 43, 1),
    Sketcher.Constraint("Coincident", 43, 2, 40, 1),
    Sketcher.Constraint("Coincident", 44, 2, 45, 2),
    Sketcher.Constraint("Coincident", 45, 1, 46, 1),
    Sketcher.Constraint("Coincident", 46, 2, 47, 1),
    Sketcher.Constraint("Coincident", 47, 2, 44, 1),
    Sketcher.Constraint("Coincident", 3, 3, 1, 3),
    Sketcher.Constraint("Coincident", 4, 3, 1, 3),
    Sketcher.Constraint("Coincident", 6, 3, 1, 3),
    Sketcher.Constraint("Coincident", 8, 3, 1, 3),
    Sketcher.Constraint("Coincident", 10, 3, 1, 3),
    Sketcher.Constraint("Coincident", 13, 3, 1, 3),
    Sketcher.Constraint("Coincident", 15, 3, 1, 3),
    Sketcher.Constraint("Coincident", 19, 3, 17, 3),
    Sketcher.Constraint("Coincident", 20, 3, 17, 3),
    Sketcher.Constraint("Coincident", 22, 3, 17, 3),
    Sketcher.Constraint("Coincident", 24, 3, 17, 3),
    Sketcher.Constraint("Coincident", 26, 3, 17, 3),
    Sketcher.Constraint("Coincident", 29, 3, 17, 3),
    Sketcher.Constraint("Coincident", 31, 3, 17, 3),
    Sketcher.Constraint("Coincident", 34, 3, 32, 3),
    Sketcher.Constraint("Coincident", 36, 3, 32, 3),
    Sketcher.Constraint("Coincident", 38, 3, 32, 3),
    Sketcher.Constraint("Coincident", 41, 3, 32, 3),
    Sketcher.Constraint("Coincident", 43, 3, 32, 3),
    Sketcher.Constraint("Coincident", 45, 3, 32, 3),
    Sketcher.Constraint("Coincident", 47, 3, 32, 3),
    Sketcher.Constraint("Radius", 3, 4.0),
    Sketcher.Constraint("Radius", 6, 4.0),
    Sketcher.Constraint("Radius", 10, 4.0),
    Sketcher.Constraint("Radius", 15, 4.0),
    Sketcher.Constraint("Radius", 19, 4.0),
    Sketcher.Constraint("Radius", 22, 4.0),
    Sketcher.Constraint("Radius", 26, 4.0),
    Sketcher.Constraint("Radius", 31, 4.0),
    Sketcher.Constraint("Radius", 34, 4.0),
    Sketcher.Constraint("Radius", 38, 4.0),
    Sketcher.Constraint("Radius", 43, 4.0),
    Sketcher.Constraint("Radius", 47, 4.0),
    Sketcher.Constraint("Radius", 1, 4.5),
    Sketcher.Constraint("Radius", 4, 4.5),
    Sketcher.Constraint("Radius", 8, 4.5),
    Sketcher.Constraint("Radius", 13, 4.5),
    Sketcher.Constraint("Radius", 17, 4.5),
    Sketcher.Constraint("Radius", 20, 4.5),
    Sketcher.Constraint("Radius", 24, 4.5),
    Sketcher.Constraint("Radius", 29, 4.5),
    Sketcher.Constraint("Radius", 32, 4.5),
    Sketcher.Constraint("Radius", 36, 4.5),
    Sketcher.Constraint("Radius", 41, 4.5),
    Sketcher.Constraint("Radius", 45, 4.5),
    Sketcher.Constraint("DistanceX", -1, 1, 3, 2, 347.4179),
    Sketcher.Constraint("DistanceX", -1, 1, 14, 2, 347.4179),
    Sketcher.Constraint("DistanceX", -1, 1, 39, 2, 304.0438),
    Sketcher.Constraint("DistanceX", -1, 1, 41, 1, 304.0438),
    Sketcher.Constraint("Distance", 18, 0.50014),
    Sketcher.Constraint("DistanceX", -1, 1, 17, 3, 395.323541),
    Sketcher.Constraint("DistanceX", -1, 1, 32, 3, 299.654911),
    Sketcher.Constraint("DistanceY", -1, 1, 32, 3, 97.241682),
    Sketcher.Constraint("DistanceY", -1, 1, 1, 1, 14.869719),
    Sketcher.Constraint("DistanceX", -1, 1, 2, 2, 344.400051),
    Sketcher.Constraint("DistanceY", -1, 1, 2, 2, 14.980142),
    Sketcher.Constraint("DistanceX", -1, 1, 5, 2, 349.18467),
    Sketcher.Constraint("DistanceX", -1, 1, 6, 2, 352.20252),
    Sketcher.Constraint("DistanceY", -1, 1, 6, 2, 14.980142),
    Sketcher.Constraint("DistanceY", -1, 1, 7, 2, 14.869719),
    Sketcher.Constraint("DistanceX", -1, 1, 9, 2, 352.20252),
    Sketcher.Constraint("DistanceX", -1, 1, 10, 2, 349.18467),
    Sketcher.Constraint("DistanceX", -1, 1, 15, 2, 344.400051),
    Sketcher.Constraint("DistanceX", -1, 1, 17, 1, 390.934652),
    Sketcher.Constraint("DistanceY", -1, 1, 19, 2, 94.79159),
    Sketcher.Constraint("DistanceX", -1, 1, 20, 1, 396.317349),
    Sketcher.Constraint("DistanceY", -1, 1, 21, 2, 94.79159),
    Sketcher.Constraint("DistanceY", -1, 1, 22, 2, 97.809439),
    Sketcher.Constraint("DistanceX", -1, 1, 23, 2, 399.71243),
    Sketcher.Constraint("DistanceX", -1, 1, 24, 1, 399.71243),
    Sketcher.Constraint("DistanceY", -1, 1, 25, 2, 99.576209),
    Sketcher.Constraint("DistanceY", -1, 1, 26, 2, 102.594059),
    Sketcher.Constraint("DistanceX", -1, 1, 27, 2, 396.317349),
    Sketcher.Constraint("DistanceX", -1, 1, 28, 2, 390.934652),
    Sketcher.Constraint("DistanceY", -1, 1, 30, 2, 102.594059),
    Sketcher.Constraint("DistanceY", -1, 1, 31, 2, 99.576209),
    Sketcher.Constraint("DistanceX", -1, 1, 36, 1, 300.648719),
    Sketcher.Constraint("DistanceX", -1, 1, 40, 2, 300.648719),
    Sketcher.Constraint("DistanceY", -1, 1, 44, 2, 98.23549),
    Sketcher.Constraint("DistanceY", -1, 1, 45, 1, 101.630571),
    Sketcher.Constraint("DistanceY", -1, 1, 17, 3, 98.692824),
    Sketcher.Constraint("DistanceX", -1, 1, 0, 2, 347.307477),
    Sketcher.Constraint("DistanceX", -1, 1, 4, 1, 349.295093),
    Sketcher.Constraint("DistanceX", -1, 1, 8, 1, 352.690174),
    Sketcher.Constraint("DistanceX", -1, 1, 11, 2, 349.295093),
    Sketcher.Constraint("DistanceX", -1, 1, 12, 2, 343.912396),
    Sketcher.Constraint("DistanceX", -1, 1, 13, 1, 347.307477),
    Sketcher.Constraint("DistanceX", -1, 1, 16, 2, 394.329733),
    Sketcher.Constraint("DistanceX", -1, 1, 29, 1, 394.329733),
    Sketcher.Constraint("DistanceX", -1, 1, 32, 1, 295.266023),
    Sketcher.Constraint("DistanceX", -1, 1, 33, 2, 295.753677),
    Sketcher.Constraint("DistanceX", -1, 1, 34, 2, 298.771527),
    Sketcher.Constraint("DistanceX", -1, 1, 35, 2, 298.661103),
    Sketcher.Constraint("DistanceX", -1, 1, 37, 2, 300.538296),
    Sketcher.Constraint("DistanceX", -1, 1, 38, 2, 303.556146),
    Sketcher.Constraint("DistanceX", -1, 1, 42, 2, 303.556146),
    Sketcher.Constraint("DistanceX", -1, 1, 43, 2, 300.538296),
    Sketcher.Constraint("DistanceX", -1, 1, 46, 2, 298.771527),
    Sketcher.Constraint("DistanceX", -1, 1, 47, 2, 295.753677),
])
pad5 = body.newObject("PartDesign::Pad", "Pad004")
pad5.Profile = sketch8
pad5.Length = 3
pad5.Reversed = True

doc.recompute()
